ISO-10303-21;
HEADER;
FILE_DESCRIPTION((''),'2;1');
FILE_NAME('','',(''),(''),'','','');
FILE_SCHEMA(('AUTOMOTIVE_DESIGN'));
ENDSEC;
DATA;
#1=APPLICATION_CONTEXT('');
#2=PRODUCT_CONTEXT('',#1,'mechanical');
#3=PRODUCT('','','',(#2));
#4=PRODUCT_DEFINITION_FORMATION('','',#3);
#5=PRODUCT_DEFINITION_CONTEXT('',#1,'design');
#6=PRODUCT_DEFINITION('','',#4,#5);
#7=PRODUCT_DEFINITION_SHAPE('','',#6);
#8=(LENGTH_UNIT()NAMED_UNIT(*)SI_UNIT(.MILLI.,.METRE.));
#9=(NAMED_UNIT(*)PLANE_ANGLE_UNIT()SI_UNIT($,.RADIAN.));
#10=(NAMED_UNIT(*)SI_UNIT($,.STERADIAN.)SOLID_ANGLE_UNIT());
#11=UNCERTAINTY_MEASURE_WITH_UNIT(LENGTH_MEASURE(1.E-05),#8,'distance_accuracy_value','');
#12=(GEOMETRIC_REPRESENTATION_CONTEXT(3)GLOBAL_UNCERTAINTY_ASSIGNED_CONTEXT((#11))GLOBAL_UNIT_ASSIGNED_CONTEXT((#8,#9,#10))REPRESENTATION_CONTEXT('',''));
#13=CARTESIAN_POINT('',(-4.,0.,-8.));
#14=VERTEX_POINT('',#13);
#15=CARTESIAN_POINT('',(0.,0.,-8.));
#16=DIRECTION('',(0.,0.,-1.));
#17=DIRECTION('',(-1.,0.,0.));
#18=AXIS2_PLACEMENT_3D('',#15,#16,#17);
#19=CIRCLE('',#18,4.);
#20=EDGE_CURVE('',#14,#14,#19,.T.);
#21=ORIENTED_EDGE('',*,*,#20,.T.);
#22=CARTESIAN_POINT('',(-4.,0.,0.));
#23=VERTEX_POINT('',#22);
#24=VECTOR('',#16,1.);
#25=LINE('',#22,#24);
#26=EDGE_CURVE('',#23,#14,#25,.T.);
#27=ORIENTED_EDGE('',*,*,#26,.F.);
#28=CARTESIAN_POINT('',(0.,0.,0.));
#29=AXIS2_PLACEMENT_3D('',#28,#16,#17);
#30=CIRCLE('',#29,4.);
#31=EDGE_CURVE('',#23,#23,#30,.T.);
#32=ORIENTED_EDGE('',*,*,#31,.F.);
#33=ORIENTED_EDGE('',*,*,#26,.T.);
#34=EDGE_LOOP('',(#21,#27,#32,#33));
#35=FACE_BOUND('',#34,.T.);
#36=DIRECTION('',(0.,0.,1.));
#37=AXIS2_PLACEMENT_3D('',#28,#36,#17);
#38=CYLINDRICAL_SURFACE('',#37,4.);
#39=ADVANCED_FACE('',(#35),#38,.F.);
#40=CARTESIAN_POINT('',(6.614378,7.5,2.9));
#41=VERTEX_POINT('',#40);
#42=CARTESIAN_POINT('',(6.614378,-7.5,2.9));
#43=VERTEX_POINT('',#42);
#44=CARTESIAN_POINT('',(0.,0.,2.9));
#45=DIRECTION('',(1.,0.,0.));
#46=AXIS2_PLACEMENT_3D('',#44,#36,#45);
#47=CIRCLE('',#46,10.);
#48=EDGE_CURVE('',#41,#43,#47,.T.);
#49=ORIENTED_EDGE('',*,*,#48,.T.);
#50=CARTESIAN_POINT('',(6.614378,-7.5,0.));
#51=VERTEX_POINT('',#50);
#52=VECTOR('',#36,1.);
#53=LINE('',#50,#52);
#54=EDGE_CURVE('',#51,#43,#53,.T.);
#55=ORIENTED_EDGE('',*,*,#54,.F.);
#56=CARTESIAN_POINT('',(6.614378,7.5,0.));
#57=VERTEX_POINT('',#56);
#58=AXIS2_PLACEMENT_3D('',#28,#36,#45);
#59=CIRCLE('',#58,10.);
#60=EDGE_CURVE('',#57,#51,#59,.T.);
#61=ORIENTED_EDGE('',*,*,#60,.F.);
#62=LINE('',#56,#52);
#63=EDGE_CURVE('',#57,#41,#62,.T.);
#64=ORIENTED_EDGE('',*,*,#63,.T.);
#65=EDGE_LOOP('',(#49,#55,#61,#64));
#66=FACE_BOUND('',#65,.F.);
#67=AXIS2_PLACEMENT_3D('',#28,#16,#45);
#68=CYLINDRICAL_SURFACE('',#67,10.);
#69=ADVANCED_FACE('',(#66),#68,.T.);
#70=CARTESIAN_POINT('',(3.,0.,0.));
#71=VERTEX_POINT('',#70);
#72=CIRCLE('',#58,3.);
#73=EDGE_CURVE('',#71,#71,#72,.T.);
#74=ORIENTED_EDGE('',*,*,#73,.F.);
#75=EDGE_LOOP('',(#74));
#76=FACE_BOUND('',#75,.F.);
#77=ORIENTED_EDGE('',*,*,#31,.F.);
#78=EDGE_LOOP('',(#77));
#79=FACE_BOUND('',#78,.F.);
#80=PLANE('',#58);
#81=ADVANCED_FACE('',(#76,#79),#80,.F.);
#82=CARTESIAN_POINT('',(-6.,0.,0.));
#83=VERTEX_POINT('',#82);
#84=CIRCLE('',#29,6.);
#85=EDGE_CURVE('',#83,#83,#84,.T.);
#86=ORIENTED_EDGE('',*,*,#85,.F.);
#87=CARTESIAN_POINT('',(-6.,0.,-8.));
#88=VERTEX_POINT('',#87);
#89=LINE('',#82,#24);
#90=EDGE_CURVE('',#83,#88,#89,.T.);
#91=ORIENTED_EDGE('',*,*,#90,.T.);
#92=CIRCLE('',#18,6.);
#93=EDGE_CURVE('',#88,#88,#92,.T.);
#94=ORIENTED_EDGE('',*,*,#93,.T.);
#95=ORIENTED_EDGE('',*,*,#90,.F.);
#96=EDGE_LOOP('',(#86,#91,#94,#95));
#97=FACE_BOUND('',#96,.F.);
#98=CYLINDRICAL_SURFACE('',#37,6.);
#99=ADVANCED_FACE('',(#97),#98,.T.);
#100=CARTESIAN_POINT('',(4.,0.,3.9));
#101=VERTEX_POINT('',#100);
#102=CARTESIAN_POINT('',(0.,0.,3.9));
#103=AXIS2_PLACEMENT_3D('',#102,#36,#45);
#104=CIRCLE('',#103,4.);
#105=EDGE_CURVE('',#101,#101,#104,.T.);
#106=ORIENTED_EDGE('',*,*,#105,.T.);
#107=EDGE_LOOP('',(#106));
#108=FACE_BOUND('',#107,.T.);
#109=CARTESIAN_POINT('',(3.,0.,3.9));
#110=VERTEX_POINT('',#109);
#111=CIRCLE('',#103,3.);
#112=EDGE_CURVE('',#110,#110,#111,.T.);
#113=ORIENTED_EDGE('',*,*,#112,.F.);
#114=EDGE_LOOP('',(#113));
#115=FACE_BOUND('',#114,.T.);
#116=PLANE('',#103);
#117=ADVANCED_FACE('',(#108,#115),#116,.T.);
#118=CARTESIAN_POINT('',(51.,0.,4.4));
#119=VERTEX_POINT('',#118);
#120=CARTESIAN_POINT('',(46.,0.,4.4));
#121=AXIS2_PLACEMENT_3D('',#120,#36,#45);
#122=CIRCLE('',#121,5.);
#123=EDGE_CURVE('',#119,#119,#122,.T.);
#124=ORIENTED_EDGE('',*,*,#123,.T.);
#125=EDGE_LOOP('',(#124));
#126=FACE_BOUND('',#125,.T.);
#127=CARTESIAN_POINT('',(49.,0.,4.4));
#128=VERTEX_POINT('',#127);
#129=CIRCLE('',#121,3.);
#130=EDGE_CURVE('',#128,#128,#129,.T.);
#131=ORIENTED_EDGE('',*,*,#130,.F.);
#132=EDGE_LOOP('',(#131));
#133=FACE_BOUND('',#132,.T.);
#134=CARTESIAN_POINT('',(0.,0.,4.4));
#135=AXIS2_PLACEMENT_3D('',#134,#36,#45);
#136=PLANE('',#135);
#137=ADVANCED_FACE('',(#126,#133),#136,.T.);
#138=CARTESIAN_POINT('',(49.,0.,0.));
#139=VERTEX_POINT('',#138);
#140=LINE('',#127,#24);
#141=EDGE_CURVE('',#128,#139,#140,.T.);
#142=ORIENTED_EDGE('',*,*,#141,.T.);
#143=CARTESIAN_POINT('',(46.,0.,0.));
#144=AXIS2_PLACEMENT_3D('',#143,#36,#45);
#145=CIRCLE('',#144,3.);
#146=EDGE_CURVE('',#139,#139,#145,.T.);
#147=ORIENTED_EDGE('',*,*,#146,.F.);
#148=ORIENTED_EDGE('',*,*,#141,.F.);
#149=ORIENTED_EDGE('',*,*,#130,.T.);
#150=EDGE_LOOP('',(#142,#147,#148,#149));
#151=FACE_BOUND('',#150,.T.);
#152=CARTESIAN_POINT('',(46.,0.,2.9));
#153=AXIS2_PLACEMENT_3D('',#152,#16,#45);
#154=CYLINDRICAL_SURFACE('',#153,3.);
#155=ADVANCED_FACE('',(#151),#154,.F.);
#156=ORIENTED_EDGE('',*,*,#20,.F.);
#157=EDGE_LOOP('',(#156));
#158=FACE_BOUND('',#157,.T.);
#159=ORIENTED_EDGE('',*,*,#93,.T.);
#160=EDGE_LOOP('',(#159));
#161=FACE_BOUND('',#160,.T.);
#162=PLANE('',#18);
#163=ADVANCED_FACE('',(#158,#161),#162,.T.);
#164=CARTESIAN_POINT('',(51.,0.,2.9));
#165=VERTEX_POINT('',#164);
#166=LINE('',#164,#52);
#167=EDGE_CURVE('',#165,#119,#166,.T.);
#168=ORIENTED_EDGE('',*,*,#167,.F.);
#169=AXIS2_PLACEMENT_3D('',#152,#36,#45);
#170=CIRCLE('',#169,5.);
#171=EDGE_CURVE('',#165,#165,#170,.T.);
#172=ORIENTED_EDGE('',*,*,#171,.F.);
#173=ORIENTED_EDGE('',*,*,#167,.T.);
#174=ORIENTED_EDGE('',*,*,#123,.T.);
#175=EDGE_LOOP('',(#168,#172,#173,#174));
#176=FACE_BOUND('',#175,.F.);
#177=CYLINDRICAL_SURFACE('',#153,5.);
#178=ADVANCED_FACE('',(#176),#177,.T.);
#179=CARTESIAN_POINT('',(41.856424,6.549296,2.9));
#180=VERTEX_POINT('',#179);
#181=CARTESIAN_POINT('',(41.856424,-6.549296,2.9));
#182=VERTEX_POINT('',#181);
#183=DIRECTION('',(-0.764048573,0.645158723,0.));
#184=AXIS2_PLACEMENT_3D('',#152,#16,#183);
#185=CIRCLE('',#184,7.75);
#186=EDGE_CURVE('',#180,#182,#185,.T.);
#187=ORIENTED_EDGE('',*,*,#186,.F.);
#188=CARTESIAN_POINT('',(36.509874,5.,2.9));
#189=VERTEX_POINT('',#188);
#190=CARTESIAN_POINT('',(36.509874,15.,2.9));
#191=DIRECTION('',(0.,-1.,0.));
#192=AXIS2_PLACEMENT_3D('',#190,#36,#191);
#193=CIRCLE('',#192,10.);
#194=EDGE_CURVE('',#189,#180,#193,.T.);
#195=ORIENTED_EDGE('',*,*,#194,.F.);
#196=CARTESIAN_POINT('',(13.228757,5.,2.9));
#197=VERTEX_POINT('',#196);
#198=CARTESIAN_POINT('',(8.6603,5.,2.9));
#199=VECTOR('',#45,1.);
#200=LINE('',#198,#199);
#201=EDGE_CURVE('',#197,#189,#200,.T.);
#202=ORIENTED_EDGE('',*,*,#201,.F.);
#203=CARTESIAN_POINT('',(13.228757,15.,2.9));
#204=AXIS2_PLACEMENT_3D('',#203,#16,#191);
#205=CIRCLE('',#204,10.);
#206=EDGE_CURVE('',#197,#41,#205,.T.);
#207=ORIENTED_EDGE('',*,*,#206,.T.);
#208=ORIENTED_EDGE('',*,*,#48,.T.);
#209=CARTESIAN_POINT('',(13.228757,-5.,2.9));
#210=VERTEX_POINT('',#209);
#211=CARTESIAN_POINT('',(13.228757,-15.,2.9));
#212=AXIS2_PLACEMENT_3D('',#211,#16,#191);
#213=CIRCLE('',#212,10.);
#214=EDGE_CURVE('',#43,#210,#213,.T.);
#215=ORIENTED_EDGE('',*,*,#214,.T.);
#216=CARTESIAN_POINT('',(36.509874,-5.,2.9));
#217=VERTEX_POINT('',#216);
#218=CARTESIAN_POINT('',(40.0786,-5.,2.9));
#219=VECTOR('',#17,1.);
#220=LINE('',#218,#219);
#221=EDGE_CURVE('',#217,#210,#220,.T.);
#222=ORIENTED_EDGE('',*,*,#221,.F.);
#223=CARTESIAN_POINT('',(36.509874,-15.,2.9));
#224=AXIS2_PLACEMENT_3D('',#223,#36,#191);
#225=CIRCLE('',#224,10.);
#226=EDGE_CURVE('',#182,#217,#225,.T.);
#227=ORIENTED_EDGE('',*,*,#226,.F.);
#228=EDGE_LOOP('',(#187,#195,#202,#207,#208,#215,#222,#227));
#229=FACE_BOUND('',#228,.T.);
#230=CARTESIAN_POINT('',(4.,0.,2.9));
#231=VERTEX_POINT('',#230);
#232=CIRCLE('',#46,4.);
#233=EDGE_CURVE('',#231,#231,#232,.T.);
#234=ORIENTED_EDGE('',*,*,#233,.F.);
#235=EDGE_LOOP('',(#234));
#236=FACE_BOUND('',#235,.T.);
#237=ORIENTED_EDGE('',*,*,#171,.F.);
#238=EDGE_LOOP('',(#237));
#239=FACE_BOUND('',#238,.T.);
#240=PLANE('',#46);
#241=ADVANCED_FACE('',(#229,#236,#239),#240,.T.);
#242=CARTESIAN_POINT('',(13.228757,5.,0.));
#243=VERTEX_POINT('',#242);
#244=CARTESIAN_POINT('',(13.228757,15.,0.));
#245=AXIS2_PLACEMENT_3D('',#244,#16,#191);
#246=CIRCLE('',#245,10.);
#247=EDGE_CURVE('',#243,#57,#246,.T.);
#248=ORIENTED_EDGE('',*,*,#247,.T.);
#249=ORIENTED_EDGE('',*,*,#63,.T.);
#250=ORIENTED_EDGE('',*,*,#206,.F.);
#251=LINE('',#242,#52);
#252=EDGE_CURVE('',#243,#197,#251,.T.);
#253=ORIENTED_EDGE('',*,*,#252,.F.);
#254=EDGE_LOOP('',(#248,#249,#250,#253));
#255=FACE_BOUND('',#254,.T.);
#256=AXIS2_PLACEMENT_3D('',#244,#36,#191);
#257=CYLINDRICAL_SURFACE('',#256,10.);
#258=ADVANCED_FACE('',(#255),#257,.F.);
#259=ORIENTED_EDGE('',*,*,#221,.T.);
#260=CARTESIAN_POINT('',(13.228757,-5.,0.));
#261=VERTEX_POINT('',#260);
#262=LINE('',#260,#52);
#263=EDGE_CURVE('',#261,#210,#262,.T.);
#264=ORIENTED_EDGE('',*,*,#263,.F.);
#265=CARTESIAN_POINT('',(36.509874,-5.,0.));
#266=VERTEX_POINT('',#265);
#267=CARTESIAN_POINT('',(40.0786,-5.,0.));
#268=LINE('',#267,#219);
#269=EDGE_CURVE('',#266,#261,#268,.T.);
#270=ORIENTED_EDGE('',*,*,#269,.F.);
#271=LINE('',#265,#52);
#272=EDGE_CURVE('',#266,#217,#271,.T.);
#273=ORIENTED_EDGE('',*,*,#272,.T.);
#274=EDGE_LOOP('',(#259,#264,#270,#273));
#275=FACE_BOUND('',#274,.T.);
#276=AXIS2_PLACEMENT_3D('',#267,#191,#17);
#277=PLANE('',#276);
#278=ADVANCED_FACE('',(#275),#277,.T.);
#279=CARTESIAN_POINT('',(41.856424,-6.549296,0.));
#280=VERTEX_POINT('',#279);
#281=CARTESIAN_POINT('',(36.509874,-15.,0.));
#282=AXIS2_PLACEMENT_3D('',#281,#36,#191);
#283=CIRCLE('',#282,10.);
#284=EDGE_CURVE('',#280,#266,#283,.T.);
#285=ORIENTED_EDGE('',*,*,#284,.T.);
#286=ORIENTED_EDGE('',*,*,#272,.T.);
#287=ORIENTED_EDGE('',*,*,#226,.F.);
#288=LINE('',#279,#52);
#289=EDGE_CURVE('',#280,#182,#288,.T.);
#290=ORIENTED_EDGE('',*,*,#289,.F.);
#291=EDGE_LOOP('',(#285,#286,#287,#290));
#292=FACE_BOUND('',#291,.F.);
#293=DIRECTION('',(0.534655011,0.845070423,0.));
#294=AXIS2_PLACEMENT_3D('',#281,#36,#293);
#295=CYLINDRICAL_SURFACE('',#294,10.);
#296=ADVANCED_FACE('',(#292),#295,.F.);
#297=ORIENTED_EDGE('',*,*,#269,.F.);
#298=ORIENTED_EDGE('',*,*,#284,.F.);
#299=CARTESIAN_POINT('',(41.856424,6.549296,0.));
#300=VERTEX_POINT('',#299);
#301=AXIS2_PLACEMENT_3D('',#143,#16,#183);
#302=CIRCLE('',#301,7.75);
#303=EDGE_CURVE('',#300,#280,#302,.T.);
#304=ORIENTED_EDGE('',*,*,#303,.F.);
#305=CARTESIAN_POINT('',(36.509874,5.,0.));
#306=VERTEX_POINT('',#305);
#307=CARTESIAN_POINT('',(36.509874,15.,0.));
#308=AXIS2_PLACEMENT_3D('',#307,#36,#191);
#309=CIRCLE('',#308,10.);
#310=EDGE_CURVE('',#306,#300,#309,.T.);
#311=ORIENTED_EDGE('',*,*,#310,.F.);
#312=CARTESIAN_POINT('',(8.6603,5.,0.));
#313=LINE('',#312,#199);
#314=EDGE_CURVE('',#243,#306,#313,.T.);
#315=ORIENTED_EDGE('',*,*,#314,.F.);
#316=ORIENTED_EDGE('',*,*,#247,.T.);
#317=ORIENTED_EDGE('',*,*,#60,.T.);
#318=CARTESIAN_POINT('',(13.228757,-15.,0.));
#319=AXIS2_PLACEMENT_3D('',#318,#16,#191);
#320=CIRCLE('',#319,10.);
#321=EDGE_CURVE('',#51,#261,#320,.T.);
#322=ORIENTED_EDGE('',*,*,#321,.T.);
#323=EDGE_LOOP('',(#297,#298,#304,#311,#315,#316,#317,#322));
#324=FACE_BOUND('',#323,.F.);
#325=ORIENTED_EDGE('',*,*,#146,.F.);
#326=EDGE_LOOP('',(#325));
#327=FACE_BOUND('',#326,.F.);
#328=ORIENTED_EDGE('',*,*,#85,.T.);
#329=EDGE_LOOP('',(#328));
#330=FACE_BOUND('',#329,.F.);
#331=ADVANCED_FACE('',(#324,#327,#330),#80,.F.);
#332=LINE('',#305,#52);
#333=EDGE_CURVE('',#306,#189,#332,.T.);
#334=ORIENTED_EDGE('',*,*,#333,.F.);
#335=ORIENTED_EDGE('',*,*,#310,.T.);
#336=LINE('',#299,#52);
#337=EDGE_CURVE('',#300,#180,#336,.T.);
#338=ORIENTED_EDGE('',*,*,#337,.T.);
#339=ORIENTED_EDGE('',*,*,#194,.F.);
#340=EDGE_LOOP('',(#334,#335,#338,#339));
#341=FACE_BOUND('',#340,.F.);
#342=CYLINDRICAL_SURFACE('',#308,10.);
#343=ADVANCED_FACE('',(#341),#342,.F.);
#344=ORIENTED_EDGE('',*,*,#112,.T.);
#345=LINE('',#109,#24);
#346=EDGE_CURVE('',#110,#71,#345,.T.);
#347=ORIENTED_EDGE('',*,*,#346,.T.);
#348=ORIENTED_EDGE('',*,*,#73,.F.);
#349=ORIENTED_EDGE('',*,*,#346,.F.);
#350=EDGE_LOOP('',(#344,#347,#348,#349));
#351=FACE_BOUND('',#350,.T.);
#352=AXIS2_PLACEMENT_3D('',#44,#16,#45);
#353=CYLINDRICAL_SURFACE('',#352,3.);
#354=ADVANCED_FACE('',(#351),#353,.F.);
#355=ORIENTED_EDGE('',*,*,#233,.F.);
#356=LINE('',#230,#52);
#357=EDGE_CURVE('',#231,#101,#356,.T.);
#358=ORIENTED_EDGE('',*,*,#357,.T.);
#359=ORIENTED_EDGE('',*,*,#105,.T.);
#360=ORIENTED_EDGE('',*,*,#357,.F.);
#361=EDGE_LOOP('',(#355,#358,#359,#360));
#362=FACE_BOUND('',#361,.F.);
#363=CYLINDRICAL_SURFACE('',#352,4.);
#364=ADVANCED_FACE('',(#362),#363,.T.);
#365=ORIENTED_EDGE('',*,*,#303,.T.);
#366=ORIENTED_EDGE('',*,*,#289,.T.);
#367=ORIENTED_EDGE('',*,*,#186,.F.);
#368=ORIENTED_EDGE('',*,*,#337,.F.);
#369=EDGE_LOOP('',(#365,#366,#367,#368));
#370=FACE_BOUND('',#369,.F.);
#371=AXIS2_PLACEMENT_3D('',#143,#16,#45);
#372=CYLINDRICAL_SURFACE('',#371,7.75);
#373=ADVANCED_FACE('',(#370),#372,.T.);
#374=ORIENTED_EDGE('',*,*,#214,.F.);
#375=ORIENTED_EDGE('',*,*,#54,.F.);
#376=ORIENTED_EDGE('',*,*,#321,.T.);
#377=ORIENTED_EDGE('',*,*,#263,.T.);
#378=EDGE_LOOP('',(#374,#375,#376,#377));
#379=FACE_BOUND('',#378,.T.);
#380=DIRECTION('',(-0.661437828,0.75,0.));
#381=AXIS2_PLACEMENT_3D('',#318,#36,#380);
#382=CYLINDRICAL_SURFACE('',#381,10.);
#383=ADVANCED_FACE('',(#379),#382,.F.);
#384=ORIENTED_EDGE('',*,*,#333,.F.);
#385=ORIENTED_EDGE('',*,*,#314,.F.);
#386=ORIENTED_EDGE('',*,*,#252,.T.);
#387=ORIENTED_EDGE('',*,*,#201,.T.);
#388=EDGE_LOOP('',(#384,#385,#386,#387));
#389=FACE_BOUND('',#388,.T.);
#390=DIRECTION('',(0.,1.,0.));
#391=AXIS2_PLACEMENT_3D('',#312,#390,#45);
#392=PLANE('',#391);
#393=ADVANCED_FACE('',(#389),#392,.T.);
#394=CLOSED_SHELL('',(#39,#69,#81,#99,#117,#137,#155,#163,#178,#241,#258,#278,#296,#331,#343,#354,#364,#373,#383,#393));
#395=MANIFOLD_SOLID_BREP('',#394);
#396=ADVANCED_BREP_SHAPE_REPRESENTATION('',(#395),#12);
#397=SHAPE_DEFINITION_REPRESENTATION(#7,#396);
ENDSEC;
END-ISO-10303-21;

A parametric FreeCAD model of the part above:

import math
import FreeCAD as App
import Part
import Sketcher


def edges_at(feature, points):
    """Names of the edges that pass closest to the given points."""
    edges = feature.Shape.Edges
    near = lambda p: min(range(len(edges)), key=lambda i: edges[i].distToShape(Part.Vertex(*p))[0])
    return sorted({f"Edge{near(p) + 1}" for p in points})

doc = App.newDocument("Part")
body = doc.addObject("PartDesign::Body", "Body")

# Sketch on XY plane
sketch1 = body.newObject("Sketcher::SketchObject", "Sketch")
sketch1.AttachmentSupport = (doc.getObject("XY_Plane"), [""])
sketch1.MapMode = "FlatFace"
sketch1.addGeometry([
    Part.LineSegment(App.Vector(8.7, -5, 0), App.Vector(40.1, -5, 0)),  # 0
    Part.ArcOfCircle(Part.Circle(App.Vector(46, 0, 0), App.Vector(0, 0, 1), 7.8), math.radians(-140), math.radians(140)),  # 1
    Part.LineSegment(App.Vector(40.1, 5, 0), App.Vector(8.7, 5, 0)),  # 2
    Part.ArcOfCircle(Part.Circle(App.Vector(0, 0, 0), App.Vector(0, 0, 1), 10), math.radians(30), math.radians(330)),  # 3
    Part.Circle(App.Vector(0, 0, 0), App.Vector(0, 0, 1), 3),  # 4
    Part.Circle(App.Vector(46, 0, 0), App.Vector(0, 0, 1), 3),  # 5
], False)
sketch1.addConstraint([
    Sketcher.Constraint("Coincident", 0, 2, 1, 1),
    Sketcher.Constraint("Coincident", 1, 2, 2, 1),
    Sketcher.Constraint("Coincident", 2, 2, 3, 1),
    Sketcher.Constraint("Coincident", 3, 2, 0, 1),
    Sketcher.Constraint("Horizontal", 0),
    Sketcher.Constraint("Horizontal", 2),
    Sketcher.Constraint("Coincident", 3, 3, -1, 1),
    Sketcher.Constraint("Coincident", 4, 3, -1, 1),
    Sketcher.Constraint("Coincident", 5, 3, 1, 3),
    Sketcher.Constraint("Equal", 4, 5),
    Sketcher.Constraint("Symmetric", 0, 2, 1, 2, -1),
    Sketcher.Constraint("Diameter", 4, 6.0),
    Sketcher.Constraint("Radius", 3, 10.0),
    Sketcher.Constraint("Radius", 1, 7.75),
    Sketcher.Constraint("DistanceX", -1, 1, 1, 3, 46.0),
    Sketcher.Constraint("DistanceY", 0, 2, 1, 2, 10.0),
])
pad1 = body.newObject("PartDesign::Pad", "Pad")
pad1.Profile = sketch1
pad1.Length = 2.9

# Sketch on XY plane
sketch2 = body.newObject("Sketcher::SketchObject", "Sketch001")
sketch2.AttachmentSupport = (doc.getObject("XY_Plane"), [""])
sketch2.MapMode = "FlatFace"
sketch2.addGeometry([
    Part.Circle(App.Vector(0, 0, 0), App.Vector(0, 0, 1), 6),
    Part.Circle(App.Vector(0, 0, 0), App.Vector(0, 0, 1), 4),
], False)
sketch2.addConstraint([
    Sketcher.Constraint("Coincident", 0, 3, -1, 1),
    Sketcher.Constraint("Coincident", 1, 3, -1, 1),
    Sketcher.Constraint("Diameter", 0, 12.0),
    Sketcher.Constraint("Diameter", 1, 8.0),
])
pad2 = body.newObject("PartDesign::Pad", "Pad001")
pad2.Profile = sketch2
pad2.Length = 8
pad2.Reversed = True

# Sketch on XY plane
sketch3 = body.newObject("Sketcher::SketchObject", "Sketch002")
sketch3.AttachmentSupport = (doc.getObject("XY_Plane"), [""])
sketch3.MapMode = "FlatFace"
sketch3.AttachmentOffset = App.Placement(App.Vector(0, 0, 2.9), App.Rotation())
sketch3.addGeometry([
    Part.Circle(App.Vector(46, 0, 0), App.Vector(0, 0, 1), 5),
    Part.Circle(App.Vector(46, 0, 0), App.Vector(0, 0, 1), 3),
], False)
sketch3.addConstraint([
    Sketcher.Constraint("Coincident", 1, 3, 0, 3),
    Sketcher.Constraint("PointOnObject", 0, 3, -1),
    Sketcher.Constraint("Diameter", 0, 10.0),
    Sketcher.Constraint("Diameter", 1, 6.0),
    Sketcher.Constraint("DistanceX", -1, 1, 0, 3, 46.0),
])
pad3 = body.newObject("PartDesign::Pad", "Pad002")
pad3.Profile = sketch3
pad3.Length = 1.5
doc.recompute()

fillet = body.newObject("PartDesign::Fillet", "Fillet")
fillet.Base = (pad3, edges_at(pad3, [(8.66, 5, 1.45), (8.66, -5, 1.45)]))
fillet.Radius = 10
doc.recompute()

fillet2 = body.newObject("PartDesign::Fillet", "Fillet001")
fillet2.Base = (fillet, edges_at(fillet, [(40.079, 5, 1.45), (40.079, -5, 1.45)]))
fillet2.Radius = 10

# Sketch on XY plane
sketch4 = body.newObject("Sketcher::SketchObject", "Sketch003")
sketch4.AttachmentSupport = (doc.getObject("XY_Plane"), [""])
sketch4.MapMode = "FlatFace"
sketch4.AttachmentOffset = App.Placement(App.Vector(0, 0, 2.9), App.Rotation())
sketch4.addGeometry([
    Part.Circle(App.Vector(0, 0, 0), App.Vector(0, 0, 1), 4),
    Part.Circle(App.Vector(0, 0, 0), App.Vector(0, 0, 1), 3),
], False)
sketch4.addConstraint([
    Sketcher.Constraint("Coincident", 0, 3, -1, 1),
    Sketcher.Constraint("Coincident", 1, 3, -1, 1),
    Sketcher.Constraint("Diameter", 0, 8.0),
    Sketcher.Constraint("Diameter", 1, 6.0),
])
pad4 = body.newObject("PartDesign::Pad", "Pad003")
pad4.Profile = sketch4
pad4.Length = 1

doc.recompute()
